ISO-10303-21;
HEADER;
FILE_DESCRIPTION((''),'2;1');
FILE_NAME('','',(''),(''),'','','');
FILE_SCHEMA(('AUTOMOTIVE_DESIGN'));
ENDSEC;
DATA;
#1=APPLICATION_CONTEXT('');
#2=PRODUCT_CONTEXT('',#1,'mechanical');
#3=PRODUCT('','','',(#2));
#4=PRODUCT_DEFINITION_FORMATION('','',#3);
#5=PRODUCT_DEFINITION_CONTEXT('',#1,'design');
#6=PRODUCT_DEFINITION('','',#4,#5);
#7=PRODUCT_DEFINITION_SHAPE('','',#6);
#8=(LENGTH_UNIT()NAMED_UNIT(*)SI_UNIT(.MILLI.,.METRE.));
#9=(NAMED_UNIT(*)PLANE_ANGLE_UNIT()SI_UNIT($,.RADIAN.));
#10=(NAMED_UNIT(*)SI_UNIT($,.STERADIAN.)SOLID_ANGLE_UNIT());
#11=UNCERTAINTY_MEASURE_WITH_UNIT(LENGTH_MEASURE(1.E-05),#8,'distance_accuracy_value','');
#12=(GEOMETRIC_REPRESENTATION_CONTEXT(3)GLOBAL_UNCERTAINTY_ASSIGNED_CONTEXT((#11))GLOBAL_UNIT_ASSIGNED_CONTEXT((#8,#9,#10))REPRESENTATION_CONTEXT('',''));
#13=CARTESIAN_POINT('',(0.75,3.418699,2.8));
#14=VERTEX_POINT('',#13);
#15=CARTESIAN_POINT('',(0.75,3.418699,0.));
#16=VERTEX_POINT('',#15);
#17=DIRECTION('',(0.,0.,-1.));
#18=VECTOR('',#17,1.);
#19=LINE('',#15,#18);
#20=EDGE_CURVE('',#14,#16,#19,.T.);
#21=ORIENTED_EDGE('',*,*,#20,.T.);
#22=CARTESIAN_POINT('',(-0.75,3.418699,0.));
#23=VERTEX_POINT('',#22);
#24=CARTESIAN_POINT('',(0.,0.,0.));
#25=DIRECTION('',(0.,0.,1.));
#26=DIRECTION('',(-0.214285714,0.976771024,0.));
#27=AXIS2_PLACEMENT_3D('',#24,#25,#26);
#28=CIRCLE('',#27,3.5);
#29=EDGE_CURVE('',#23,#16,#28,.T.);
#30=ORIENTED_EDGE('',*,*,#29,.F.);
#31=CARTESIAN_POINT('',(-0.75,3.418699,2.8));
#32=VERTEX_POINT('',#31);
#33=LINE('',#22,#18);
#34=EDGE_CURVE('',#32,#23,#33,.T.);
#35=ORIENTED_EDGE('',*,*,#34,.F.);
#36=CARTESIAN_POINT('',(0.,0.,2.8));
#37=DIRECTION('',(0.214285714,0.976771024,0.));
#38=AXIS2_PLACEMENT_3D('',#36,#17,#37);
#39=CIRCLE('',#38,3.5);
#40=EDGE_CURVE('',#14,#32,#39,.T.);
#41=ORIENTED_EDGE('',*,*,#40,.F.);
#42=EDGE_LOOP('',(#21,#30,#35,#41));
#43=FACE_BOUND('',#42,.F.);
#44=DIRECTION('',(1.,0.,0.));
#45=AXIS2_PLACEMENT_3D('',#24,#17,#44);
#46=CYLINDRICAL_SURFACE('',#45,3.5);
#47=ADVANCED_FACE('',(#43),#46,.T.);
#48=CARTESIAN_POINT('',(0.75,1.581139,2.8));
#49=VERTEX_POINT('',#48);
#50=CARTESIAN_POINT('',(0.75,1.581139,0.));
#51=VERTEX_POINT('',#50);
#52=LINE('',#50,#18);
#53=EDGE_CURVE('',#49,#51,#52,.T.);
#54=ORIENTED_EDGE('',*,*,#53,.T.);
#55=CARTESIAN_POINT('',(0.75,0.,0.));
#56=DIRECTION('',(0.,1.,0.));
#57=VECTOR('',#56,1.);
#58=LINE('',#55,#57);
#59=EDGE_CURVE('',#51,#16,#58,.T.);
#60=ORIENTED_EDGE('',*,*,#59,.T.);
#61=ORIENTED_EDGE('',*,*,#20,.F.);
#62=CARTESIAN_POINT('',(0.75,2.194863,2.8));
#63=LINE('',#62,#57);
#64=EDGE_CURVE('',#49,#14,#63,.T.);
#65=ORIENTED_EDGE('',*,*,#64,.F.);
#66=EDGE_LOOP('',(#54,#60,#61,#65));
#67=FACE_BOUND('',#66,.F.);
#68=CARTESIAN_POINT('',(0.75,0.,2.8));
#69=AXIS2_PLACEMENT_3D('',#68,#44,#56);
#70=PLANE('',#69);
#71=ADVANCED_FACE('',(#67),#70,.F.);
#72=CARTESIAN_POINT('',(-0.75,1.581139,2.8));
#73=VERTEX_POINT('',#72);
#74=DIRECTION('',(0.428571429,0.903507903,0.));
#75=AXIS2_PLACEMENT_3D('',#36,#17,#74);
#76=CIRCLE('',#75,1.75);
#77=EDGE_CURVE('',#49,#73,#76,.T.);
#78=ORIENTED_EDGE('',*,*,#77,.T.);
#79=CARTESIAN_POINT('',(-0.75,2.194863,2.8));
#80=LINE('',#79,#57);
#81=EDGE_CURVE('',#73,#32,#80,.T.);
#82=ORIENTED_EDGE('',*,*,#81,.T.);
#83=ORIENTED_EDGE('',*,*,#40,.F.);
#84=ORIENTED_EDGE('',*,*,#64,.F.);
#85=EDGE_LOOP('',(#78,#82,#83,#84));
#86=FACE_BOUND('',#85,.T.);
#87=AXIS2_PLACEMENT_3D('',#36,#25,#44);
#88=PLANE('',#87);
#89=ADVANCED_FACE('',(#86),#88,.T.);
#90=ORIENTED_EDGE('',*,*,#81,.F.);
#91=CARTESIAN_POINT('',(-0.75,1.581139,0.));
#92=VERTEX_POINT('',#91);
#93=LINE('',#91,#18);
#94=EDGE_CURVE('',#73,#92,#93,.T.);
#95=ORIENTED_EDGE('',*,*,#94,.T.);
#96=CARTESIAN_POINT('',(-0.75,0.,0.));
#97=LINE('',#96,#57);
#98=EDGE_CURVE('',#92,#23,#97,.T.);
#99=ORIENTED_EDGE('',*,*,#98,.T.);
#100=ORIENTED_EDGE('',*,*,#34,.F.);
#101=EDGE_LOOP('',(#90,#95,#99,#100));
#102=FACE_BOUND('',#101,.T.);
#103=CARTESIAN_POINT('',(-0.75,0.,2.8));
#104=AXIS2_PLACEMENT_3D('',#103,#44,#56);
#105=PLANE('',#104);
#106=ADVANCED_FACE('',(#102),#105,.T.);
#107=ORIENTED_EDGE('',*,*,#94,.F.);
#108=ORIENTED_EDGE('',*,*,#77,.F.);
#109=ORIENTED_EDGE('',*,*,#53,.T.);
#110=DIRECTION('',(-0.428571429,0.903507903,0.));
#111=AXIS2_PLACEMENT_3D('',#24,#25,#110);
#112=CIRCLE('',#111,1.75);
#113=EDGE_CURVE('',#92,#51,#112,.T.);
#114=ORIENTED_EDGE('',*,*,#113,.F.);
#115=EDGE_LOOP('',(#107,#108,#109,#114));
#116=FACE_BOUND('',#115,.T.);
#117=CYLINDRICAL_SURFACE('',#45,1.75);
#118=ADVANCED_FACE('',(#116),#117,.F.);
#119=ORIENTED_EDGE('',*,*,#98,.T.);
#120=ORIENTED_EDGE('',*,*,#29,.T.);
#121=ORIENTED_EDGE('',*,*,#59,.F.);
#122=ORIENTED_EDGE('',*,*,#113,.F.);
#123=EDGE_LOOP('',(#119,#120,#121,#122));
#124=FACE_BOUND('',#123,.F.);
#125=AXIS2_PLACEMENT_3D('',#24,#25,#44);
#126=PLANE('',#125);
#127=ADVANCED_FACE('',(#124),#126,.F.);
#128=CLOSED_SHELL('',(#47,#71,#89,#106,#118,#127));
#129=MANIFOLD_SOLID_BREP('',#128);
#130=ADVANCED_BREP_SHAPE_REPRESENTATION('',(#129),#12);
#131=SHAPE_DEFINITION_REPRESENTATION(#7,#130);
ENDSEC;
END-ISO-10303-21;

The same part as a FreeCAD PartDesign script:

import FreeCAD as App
import Part
import Sketcher

V = App.Vector
Q = App.Units.Quantity


def add_polygon(sketch, points):
    """Adds a closed chain of lines whose ends are joined by coincident constraints."""
    first, n = sketch.GeometryCount, len(points)
    for a, b in zip(points, points[1:] + points[:1]):
        sketch.addGeometry(Part.LineSegment(App.Vector(*a, 0), App.Vector(*b, 0)), False)
    for i in range(n):
        sketch.addConstraint(Sketcher.Constraint("Coincident", first + i, 2, first + (i + 1) % n, 1))

doc = App.newDocument("Part")
params = doc.addObject("Spreadsheet::Sheet", "Params")
for row, (alias, value) in enumerate([
    ("sketch1_diameter", "7 mm"),
    ("sketch1_diameter2", "3.5 mm"),
    ("pad1_length", "2.8 mm"),
    ("sketch2_width", "1.5 mm"),
    ("pocket1_length", "5 mm"),
], start=1):
    params.set(f"A{row}", alias)
    params.set(f"B{row}", "=" + value)
    params.setAlias(f"B{row}", alias)

body = doc.addObject("PartDesign::Body", "Body")

sketch1 = body.newObject("Sketcher::SketchObject", "Sketch")
sketch1.AttachmentSupport = (doc.getObject("XY_Plane"), [""])
sketch1.MapMode = "FlatFace"
sketch1.addGeometry(Part.Circle(V(0, 0, 0), V(0, 0, 1), 3.5), False)
sketch1.addGeometry(Part.Circle(V(0, 0, 0), V(0, 0, 1), 1.75), False)
sketch1.addConstraint(Sketcher.Constraint("Coincident", 0, 3, -1, 1))
sketch1.addConstraint(Sketcher.Constraint("Coincident", 1, 3, -1, 1))
sketch1.addConstraint(Sketcher.Constraint("Diameter", 0, Q("7 mm")))
sketch1.addConstraint(Sketcher.Constraint("Diameter", 1, Q("3.5 mm")))
sketch1.setExpression("Constraints[2]", "Params.sketch1_diameter")
sketch1.setExpression("Constraints[3]", "Params.sketch1_diameter2")
pad1 = body.newObject("PartDesign::Pad", "Pad")
pad1.Profile = sketch1
pad1.setExpression("Length", "Params.pad1_length")

sketch2 = body.newObject("Sketcher::SketchObject", "Sketch001")
sketch2.AttachmentSupport = (doc.getObject("XY_Plane"), [""])
sketch2.MapMode = "FlatFace"
sketch2.AttachmentOffset = App.Placement(V(0, 0, 2.8), App.Rotation())
add_polygon(sketch2, [(-0.75, 4.389726), (-0.75, 0), (0.75, 0), (0.75, 4.389726)])
sketch2.addConstraint(Sketcher.Constraint("Vertical", 0))
sketch2.addConstraint(Sketcher.Constraint("Horizontal", 1))
sketch2.addConstraint(Sketcher.Constraint("Vertical", 2))
sketch2.addConstraint(Sketcher.Constraint("Horizontal", 3))
sketch2.addConstraint(Sketcher.Constraint("Symmetric", 0, 2, 1, 2, -1, 1))
sketch2.addConstraint(Sketcher.Constraint("DistanceX", 1, 1, 1, 2, Q("1.5 mm")))
sketch2.addConstraint(Sketcher.Constraint("DistanceY", 0, 2, 0, 1, Q("4.389726 mm")))
sketch2.setExpression("Constraints[9]", "Params.sketch2_width")
pocket1 = body.newObject("PartDesign::Pocket", "Pocket")
pocket1.Profile = sketch2
pocket1.setExpression("Length", "Params.pocket1_length")

doc.recompute()
